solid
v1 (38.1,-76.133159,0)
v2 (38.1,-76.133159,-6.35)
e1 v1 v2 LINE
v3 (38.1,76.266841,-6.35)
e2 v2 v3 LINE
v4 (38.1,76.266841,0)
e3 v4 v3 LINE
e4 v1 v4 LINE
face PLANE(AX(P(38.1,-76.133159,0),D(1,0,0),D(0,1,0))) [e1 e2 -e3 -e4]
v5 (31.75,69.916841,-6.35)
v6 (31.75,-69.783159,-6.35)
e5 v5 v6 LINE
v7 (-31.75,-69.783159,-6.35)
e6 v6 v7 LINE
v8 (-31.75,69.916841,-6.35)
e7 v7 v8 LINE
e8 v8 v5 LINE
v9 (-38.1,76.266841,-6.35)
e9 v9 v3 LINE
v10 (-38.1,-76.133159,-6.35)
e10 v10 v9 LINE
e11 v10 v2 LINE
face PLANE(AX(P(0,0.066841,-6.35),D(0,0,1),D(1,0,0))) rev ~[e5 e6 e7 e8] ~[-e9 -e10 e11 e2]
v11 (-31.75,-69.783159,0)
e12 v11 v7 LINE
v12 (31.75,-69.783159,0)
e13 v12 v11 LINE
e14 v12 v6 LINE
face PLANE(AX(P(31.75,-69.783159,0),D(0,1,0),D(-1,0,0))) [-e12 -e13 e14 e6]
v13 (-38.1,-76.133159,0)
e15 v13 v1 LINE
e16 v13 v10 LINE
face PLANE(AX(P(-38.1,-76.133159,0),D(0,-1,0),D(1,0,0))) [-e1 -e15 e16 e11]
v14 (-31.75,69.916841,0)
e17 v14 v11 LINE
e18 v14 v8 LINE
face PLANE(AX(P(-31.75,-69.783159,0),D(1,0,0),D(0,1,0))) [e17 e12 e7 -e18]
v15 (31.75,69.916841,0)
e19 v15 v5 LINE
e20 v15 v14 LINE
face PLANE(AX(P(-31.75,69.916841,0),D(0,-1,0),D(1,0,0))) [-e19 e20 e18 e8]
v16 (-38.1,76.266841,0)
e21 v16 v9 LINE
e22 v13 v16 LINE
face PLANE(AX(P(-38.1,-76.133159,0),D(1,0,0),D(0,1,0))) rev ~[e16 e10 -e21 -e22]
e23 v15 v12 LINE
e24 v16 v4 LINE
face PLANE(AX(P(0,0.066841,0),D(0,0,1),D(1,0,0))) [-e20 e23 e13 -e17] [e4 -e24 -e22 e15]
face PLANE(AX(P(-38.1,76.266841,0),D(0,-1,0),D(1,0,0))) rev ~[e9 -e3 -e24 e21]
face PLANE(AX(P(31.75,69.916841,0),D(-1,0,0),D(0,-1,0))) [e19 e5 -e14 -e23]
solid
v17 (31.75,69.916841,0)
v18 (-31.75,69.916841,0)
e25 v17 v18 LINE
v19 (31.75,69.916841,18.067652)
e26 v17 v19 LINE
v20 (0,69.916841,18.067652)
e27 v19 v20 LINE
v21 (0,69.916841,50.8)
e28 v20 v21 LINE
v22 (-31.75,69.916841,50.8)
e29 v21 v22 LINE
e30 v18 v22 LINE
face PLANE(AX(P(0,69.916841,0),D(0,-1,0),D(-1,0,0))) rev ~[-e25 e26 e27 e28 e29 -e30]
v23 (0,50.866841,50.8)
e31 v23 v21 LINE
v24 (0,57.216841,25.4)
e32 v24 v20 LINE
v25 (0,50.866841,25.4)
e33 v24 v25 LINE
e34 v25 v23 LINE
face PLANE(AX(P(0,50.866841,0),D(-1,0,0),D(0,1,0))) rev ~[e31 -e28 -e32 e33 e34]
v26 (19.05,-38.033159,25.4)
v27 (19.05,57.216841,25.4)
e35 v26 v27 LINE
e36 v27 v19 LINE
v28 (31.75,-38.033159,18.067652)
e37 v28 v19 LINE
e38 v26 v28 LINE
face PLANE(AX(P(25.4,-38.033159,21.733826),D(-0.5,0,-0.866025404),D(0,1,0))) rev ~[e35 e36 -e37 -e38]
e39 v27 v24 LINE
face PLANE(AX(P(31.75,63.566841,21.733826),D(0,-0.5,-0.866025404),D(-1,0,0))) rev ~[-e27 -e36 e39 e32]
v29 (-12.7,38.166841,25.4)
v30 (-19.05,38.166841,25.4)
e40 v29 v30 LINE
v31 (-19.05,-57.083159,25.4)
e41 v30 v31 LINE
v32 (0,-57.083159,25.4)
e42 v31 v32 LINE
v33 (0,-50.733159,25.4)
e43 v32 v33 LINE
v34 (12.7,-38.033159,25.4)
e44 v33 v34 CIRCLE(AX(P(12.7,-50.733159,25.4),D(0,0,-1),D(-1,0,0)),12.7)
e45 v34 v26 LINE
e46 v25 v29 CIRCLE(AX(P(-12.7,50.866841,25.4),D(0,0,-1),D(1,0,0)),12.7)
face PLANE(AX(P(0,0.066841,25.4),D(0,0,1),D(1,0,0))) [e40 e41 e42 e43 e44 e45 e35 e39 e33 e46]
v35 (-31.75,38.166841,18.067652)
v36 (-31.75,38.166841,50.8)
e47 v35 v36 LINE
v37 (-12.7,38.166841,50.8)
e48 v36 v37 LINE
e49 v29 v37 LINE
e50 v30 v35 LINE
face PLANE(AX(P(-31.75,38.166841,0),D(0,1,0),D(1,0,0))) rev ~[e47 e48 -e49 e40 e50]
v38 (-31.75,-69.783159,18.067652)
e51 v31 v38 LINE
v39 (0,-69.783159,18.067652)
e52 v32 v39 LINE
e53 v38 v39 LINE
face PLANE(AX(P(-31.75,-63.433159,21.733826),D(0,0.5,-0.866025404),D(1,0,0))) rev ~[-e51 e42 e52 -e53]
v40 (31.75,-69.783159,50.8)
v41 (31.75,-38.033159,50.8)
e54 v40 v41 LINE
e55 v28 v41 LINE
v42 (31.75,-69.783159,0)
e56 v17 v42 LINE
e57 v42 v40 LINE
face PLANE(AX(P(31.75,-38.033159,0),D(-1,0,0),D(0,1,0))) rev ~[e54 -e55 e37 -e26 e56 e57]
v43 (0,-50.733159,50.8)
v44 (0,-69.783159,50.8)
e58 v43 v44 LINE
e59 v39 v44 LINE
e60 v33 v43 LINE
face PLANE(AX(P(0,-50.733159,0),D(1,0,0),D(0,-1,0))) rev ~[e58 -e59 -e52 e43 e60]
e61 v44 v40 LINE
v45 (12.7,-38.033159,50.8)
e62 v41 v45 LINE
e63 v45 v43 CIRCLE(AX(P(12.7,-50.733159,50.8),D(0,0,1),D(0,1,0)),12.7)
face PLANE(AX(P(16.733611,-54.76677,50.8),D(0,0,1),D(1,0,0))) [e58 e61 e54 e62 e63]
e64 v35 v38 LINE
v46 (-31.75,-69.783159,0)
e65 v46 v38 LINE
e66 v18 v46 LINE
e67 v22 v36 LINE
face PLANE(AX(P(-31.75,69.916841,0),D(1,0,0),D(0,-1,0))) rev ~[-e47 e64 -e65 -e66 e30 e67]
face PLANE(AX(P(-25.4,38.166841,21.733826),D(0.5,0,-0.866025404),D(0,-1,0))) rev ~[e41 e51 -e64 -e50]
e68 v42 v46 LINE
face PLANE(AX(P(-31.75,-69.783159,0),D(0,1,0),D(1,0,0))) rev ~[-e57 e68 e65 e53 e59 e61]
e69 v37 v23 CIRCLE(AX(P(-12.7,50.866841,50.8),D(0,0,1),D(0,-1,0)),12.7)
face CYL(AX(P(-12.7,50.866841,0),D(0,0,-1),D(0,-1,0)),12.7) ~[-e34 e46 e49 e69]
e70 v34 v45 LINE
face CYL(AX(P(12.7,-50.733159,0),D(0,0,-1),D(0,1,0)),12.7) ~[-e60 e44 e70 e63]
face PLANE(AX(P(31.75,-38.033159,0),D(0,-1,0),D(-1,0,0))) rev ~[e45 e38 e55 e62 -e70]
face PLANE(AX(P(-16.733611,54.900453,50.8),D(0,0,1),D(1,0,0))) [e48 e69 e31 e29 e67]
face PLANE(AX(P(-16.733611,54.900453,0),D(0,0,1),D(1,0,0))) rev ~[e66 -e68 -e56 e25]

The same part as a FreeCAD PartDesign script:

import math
import FreeCAD as App
import Part
import Sketcher
from FreeCAD import Vector
Q = App.Units.Quantity


def edges_at(feature, points):
    """Names of the edges that pass closest to the given points."""
    edges = feature.Shape.Edges
    near = lambda p: min(range(len(edges)), key=lambda i: edges[i].distToShape(Part.Vertex(*p))[0])
    return sorted({f"Edge{near(p) + 1}" for p in points})

doc = App.newDocument("Part")
body = doc.addObject("PartDesign::Body", "Body")

# Sketch on XY plane
sketch1 = body.newObject("Sketcher::SketchObject", "Sketch")
sketch1.AttachmentSupport = (doc.getObject("XY_Plane"), [""])
sketch1.MapMode = "FlatFace"
sketch1.addGeometry(Part.LineSegment(Vector(-38, 76, 0), Vector(-38, -76, 0)), False)
sketch1.addGeometry(Part.LineSegment(Vector(-38, -76, 0), Vector(38, -76, 0)), False)
sketch1.addGeometry(Part.LineSegment(Vector(38, -76, 0), Vector(38, 76, 0)), False)
sketch1.addGeometry(Part.LineSegment(Vector(38, 76, 0), Vector(-38, 76, 0)), False)
sketch1.addGeometry(Part.LineSegment(Vector(-32, -70, 0), Vector(-32, 70, 0)), False)
sketch1.addGeometry(Part.LineSegment(Vector(-32, 70, 0), Vector(32, 70, 0)), False)
sketch1.addGeometry(Part.LineSegment(Vector(32, 70, 0), Vector(32, -70, 0)), False)
sketch1.addGeometry(Part.LineSegment(Vector(32, -70, 0), Vector(-32, -70, 0)), False)
sketch1.addConstraint(Sketcher.Constraint("Coincident", 0, 2, 1, 1))
sketch1.addConstraint(Sketcher.Constraint("Coincident", 1, 2, 2, 1))
sketch1.addConstraint(Sketcher.Constraint("Coincident", 2, 2, 3, 1))
sketch1.addConstraint(Sketcher.Constraint("Coincident", 3, 2, 0, 1))
sketch1.addConstraint(Sketcher.Constraint("Coincident", 4, 2, 5, 1))
sketch1.addConstraint(Sketcher.Constraint("Coincident", 5, 2, 6, 1))
sketch1.addConstraint(Sketcher.Constraint("Coincident", 6, 2, 7, 1))
sketch1.addConstraint(Sketcher.Constraint("Coincident", 7, 2, 4, 1))
sketch1.addConstraint(Sketcher.Constraint("Vertical", 0))
sketch1.addConstraint(Sketcher.Constraint("Horizontal", 1))
sketch1.addConstraint(Sketcher.Constraint("Vertical", 2))
sketch1.addConstraint(Sketcher.Constraint("Horizontal", 3))
sketch1.addConstraint(Sketcher.Constraint("Vertical", 4))
sketch1.addConstraint(Sketcher.Constraint("Horizontal", 5))
sketch1.addConstraint(Sketcher.Constraint("Vertical", 6))
sketch1.addConstraint(Sketcher.Constraint("Horizontal", 7))
sketch1.addConstraint(Sketcher.Constraint("DistanceX", 1, 1, 1, 2, Q("3 in")))
sketch1.addConstraint(Sketcher.Constraint("DistanceY", 0, 2, 0, 1, Q("6 in")))
sketch1.addConstraint(Sketcher.Constraint("DistanceX", 5, 1, 5, 2, Q("2.5 in")))
sketch1.addConstraint(Sketcher.Constraint("DistanceY", 4, 1, 4, 2, Q("5.5 in")))
sketch1.addConstraint(Sketcher.Constraint("DistanceX", 0, 2, -1, 1, Q("1.5 in")))
sketch1.addConstraint(Sketcher.Constraint("DistanceX", 4, 2, -1, 1, Q("1.25 in")))
sketch1.addConstraint(Sketcher.Constraint("DistanceY", 4, 2, 3, 2, Q("0.25 in")))
sketch1.addConstraint(Sketcher.Constraint("DistanceY", 0, 2, -1, 1, 76.133159))
pad1 = body.newObject("PartDesign::Pad", "Pad")
pad1.Profile = sketch1
pad1.Length = Q("0.25 in")
pad1.Reversed = True
body2 = doc.addObject("PartDesign::Body", "Body001")

# Sketch on XY plane
sketch2 = body2.newObject("Sketcher::SketchObject", "Sketch001")
sketch2.AttachmentSupport = (doc.getObject("XY_Plane001"), [""])
sketch2.MapMode = "FlatFace"
sketch2.addGeometry(Part.LineSegment(Vector(32, 70, 0), Vector(0, 70, 0)), False)
sketch2.addGeometry(Part.LineSegment(Vector(0, 70, 0), Vector(0, 51, 0)), False)
sketch2.addGeometry(Part.ArcOfCircle(Part.Circle(Vector(-13, 51, 0), Vector(0, 0, 1), 13), math.radians(-90), math.radians(0)), False)
sketch2.addGeometry(Part.LineSegment(Vector(-13, 38, 0), Vector(-32, 38, 0)), False)
sketch2.addGeometry(Part.LineSegment(Vector(-32, 38, 0), Vector(-32, -70, 0)), False)
sketch2.addGeometry(Part.LineSegment(Vector(-32, -70, 0), Vector(0, -70, 0)), False)
sketch2.addGeometry(Part.LineSegment(Vector(0, -70, 0), Vector(0, -51, 0)), False)
sketch2.addGeometry(Part.ArcOfCircle(Part.Circle(Vector(13, -51, 0), Vector(0, 0, 1), 13), math.radians(90), math.radians(180)), False)
sketch2.addGeometry(Part.LineSegment(Vector(13, -38, 0), Vector(32, -38, 0)), False)
sketch2.addGeometry(Part.LineSegment(Vector(32, -38, 0), Vector(32, 70, 0)), False)
sketch2.addConstraint(Sketcher.Constraint("Coincident", 0, 2, 1, 1))
sketch2.addConstraint(Sketcher.Constraint("Tangent", 1, 2, 2, 2))
sketch2.addConstraint(Sketcher.Constraint("Tangent", 2, 1, 3, 1))
sketch2.addConstraint(Sketcher.Constraint("Coincident", 3, 2, 4, 1))
sketch2.addConstraint(Sketcher.Constraint("Coincident", 4, 2, 5, 1))
sketch2.addConstraint(Sketcher.Constraint("Coincident", 5, 2, 6, 1))
sketch2.addConstraint(Sketcher.Constraint("Tangent", 6, 2, 7, 2))
sketch2.addConstraint(Sketcher.Constraint("Tangent", 7, 1, 8, 1))
sketch2.addConstraint(Sketcher.Constraint("Coincident", 8, 2, 9, 1))
sketch2.addConstraint(Sketcher.Constraint("Coincident", 9, 2, 0, 1))
sketch2.addConstraint(Sketcher.Constraint("Horizontal", 0))
sketch2.addConstraint(Sketcher.Constraint("Vertical", 1))
sketch2.addConstraint(Sketcher.Constraint("Horizontal", 3))
sketch2.addConstraint(Sketcher.Constraint("Vertical", 4))
sketch2.addConstraint(Sketcher.Constraint("Horizontal", 5))
sketch2.addConstraint(Sketcher.Constraint("Vertical", 6))
sketch2.addConstraint(Sketcher.Constraint("Horizontal", 8))
sketch2.addConstraint(Sketcher.Constraint("Vertical", 9))
sketch2.addConstraint(Sketcher.Constraint("Equal", 2, 7))
sketch2.addConstraint(Sketcher.Constraint("PointOnObject", 0, 2, -2))
sketch2.addConstraint(Sketcher.Constraint("PointOnObject", 5, 2, -2))
sketch2.addConstraint(Sketcher.Constraint("Equal", 0, 5))
sketch2.addConstraint(Sketcher.Constraint("Equal", 8, 1))
sketch2.addConstraint(Sketcher.Constraint("Equal", 1, 6))
sketch2.addConstraint(Sketcher.Constraint("Radius", 2, Q("0.5 in")))
sketch2.addConstraint(Sketcher.Constraint("DistanceY", 7, 3, 2, 3, Q("4 in")))
sketch2.addConstraint(Sketcher.Constraint("DistanceX", 0, 2, 0, 1, Q("1.25 in")))
sketch2.addConstraint(Sketcher.Constraint("DistanceY", -1, 1, 2, 3, 50.866841))
pad2 = body2.newObject("PartDesign::Pad", "Pad001")
pad2.Profile = sketch2
pad2.Length = Q("1 in")
doc.recompute()

chamfer = body2.newObject("PartDesign::Chamfer", "Chamfer")
chamfer.Base = (pad2, edges_at(pad2, [
    (-15.875, -69.783, 25.4),
    (-31.75, -15.808, 25.4),
    (31.75, 15.942, 25.4),
    (15.875, 69.917, 25.4),
]))
chamfer.ChamferType = "Two distances"
chamfer.Size = Q("0.5 in")
chamfer.Size2 = 7.332348
chamfer.FlipDirection = True
body.AllowCompound = True
doc.recompute()

boolean = body.newObject("PartDesign::Boolean", "Boolean")
boolean.Type = "Fuse"
boolean.addObjects([body2])

# Sketch on XY plane
sketch3 = body.newObject("Sketcher::SketchObject", "Sketch002")
sketch3.AttachmentSupport = (doc.getObject("XY_Plane"), [""])
sketch3.MapMode = "FlatFace"
sketch3.addGeometry(Part.LineSegment(Vector(0, 70, 0), Vector(-32, 70, 0)), False)
sketch3.addGeometry(Part.LineSegment(Vector(-32, 70, 0), Vector(-32, 38, 0)), False)
sketch3.addGeometry(Part.LineSegment(Vector(-32, 38, 0), Vector(-13, 38, 0)), False)
sketch3.addGeometry(Part.ArcOfCircle(Part.Circle(Vector(-13, 51, 0), Vector(0, 0, 1), 13), math.radians(-90), math.radians(0)), False)
sketch3.addGeometry(Part.LineSegment(Vector(0, 51, 0), Vector(0, 70, 0)), False)
sketch3.addGeometry(Part.LineSegment(Vector(32, -70, 0), Vector(32, -38, 0)), False)
sketch3.addGeometry(Part.LineSegment(Vector(32, -38, 0), Vector(13, -38, 0)), False)
sketch3.addGeometry(Part.ArcOfCircle(Part.Circle(Vector(13, -51, 0), Vector(0, 0, 1), 13), math.radians(90), math.radians(180)), False)
sketch3.addGeometry(Part.LineSegment(Vector(0, -51, 0), Vector(0, -70, 0)), False)
sketch3.addGeometry(Part.LineSegment(Vector(0, -70, 0), Vector(32, -70, 0)), False)
sketch3.addConstraint(Sketcher.Constraint("Coincident", 0, 2, 1, 1))
sketch3.addConstraint(Sketcher.Constraint("Coincident", 1, 2, 2, 1))
sketch3.addConstraint(Sketcher.Constraint("Tangent", 2, 2, 3, 1))
sketch3.addConstraint(Sketcher.Constraint("Tangent", 3, 2, 4, 1))
sketch3.addConstraint(Sketcher.Constraint("Coincident", 4, 2, 0, 1))
sketch3.addConstraint(Sketcher.Constraint("Coincident", 5, 2, 6, 1))
sketch3.addConstraint(Sketcher.Constraint("Tangent", 6, 2, 7, 1))
sketch3.addConstraint(Sketcher.Constraint("Tangent", 7, 2, 8, 1))
sketch3.addConstraint(Sketcher.Constraint("Coincident", 8, 2, 9, 1))
sketch3.addConstraint(Sketcher.Constraint("Coincident", 9, 2, 5, 1))
sketch3.addConstraint(Sketcher.Constraint("Horizontal", 0))
sketch3.addConstraint(Sketcher.Constraint("Vertical", 1))
sketch3.addConstraint(Sketcher.Constraint("Horizontal", 2))
sketch3.addConstraint(Sketcher.Constraint("Vertical", 4))
sketch3.addConstraint(Sketcher.Constraint("Vertical", 5))
sketch3.addConstraint(Sketcher.Constraint("Horizontal", 6))
sketch3.addConstraint(Sketcher.Constraint("Vertical", 8))
sketch3.addConstraint(Sketcher.Constraint("Horizontal", 9))
sketch3.addConstraint(Sketcher.Constraint("Equal", 3, 7))
sketch3.addConstraint(Sketcher.Constraint("PointOnObject", 3, 2, -2))
sketch3.addConstraint(Sketcher.Constraint("PointOnObject", 7, 2, -2))
sketch3.addConstraint(Sketcher.Constraint("Equal", 2, 6))
sketch3.addConstraint(Sketcher.Constraint("Equal", 9, 1))
sketch3.addConstraint(Sketcher.Constraint("Equal", 1, 5))
sketch3.addConstraint(Sketcher.Constraint("Radius", 3, Q("0.5 in")))
sketch3.addConstraint(Sketcher.Constraint("DistanceY", 7, 3, 3, 3, Q("4 in")))
sketch3.addConstraint(Sketcher.Constraint("DistanceX", 0, 2, 0, 1, Q("1.25 in")))
sketch3.addConstraint(Sketcher.Constraint("DistanceY", -1, 1, 3, 3, 50.866841))
pad3 = body.newObject("PartDesign::Pad", "Pad002")
pad3.Profile = sketch3
pad3.Length = Q("2 in")

doc.recompute()
